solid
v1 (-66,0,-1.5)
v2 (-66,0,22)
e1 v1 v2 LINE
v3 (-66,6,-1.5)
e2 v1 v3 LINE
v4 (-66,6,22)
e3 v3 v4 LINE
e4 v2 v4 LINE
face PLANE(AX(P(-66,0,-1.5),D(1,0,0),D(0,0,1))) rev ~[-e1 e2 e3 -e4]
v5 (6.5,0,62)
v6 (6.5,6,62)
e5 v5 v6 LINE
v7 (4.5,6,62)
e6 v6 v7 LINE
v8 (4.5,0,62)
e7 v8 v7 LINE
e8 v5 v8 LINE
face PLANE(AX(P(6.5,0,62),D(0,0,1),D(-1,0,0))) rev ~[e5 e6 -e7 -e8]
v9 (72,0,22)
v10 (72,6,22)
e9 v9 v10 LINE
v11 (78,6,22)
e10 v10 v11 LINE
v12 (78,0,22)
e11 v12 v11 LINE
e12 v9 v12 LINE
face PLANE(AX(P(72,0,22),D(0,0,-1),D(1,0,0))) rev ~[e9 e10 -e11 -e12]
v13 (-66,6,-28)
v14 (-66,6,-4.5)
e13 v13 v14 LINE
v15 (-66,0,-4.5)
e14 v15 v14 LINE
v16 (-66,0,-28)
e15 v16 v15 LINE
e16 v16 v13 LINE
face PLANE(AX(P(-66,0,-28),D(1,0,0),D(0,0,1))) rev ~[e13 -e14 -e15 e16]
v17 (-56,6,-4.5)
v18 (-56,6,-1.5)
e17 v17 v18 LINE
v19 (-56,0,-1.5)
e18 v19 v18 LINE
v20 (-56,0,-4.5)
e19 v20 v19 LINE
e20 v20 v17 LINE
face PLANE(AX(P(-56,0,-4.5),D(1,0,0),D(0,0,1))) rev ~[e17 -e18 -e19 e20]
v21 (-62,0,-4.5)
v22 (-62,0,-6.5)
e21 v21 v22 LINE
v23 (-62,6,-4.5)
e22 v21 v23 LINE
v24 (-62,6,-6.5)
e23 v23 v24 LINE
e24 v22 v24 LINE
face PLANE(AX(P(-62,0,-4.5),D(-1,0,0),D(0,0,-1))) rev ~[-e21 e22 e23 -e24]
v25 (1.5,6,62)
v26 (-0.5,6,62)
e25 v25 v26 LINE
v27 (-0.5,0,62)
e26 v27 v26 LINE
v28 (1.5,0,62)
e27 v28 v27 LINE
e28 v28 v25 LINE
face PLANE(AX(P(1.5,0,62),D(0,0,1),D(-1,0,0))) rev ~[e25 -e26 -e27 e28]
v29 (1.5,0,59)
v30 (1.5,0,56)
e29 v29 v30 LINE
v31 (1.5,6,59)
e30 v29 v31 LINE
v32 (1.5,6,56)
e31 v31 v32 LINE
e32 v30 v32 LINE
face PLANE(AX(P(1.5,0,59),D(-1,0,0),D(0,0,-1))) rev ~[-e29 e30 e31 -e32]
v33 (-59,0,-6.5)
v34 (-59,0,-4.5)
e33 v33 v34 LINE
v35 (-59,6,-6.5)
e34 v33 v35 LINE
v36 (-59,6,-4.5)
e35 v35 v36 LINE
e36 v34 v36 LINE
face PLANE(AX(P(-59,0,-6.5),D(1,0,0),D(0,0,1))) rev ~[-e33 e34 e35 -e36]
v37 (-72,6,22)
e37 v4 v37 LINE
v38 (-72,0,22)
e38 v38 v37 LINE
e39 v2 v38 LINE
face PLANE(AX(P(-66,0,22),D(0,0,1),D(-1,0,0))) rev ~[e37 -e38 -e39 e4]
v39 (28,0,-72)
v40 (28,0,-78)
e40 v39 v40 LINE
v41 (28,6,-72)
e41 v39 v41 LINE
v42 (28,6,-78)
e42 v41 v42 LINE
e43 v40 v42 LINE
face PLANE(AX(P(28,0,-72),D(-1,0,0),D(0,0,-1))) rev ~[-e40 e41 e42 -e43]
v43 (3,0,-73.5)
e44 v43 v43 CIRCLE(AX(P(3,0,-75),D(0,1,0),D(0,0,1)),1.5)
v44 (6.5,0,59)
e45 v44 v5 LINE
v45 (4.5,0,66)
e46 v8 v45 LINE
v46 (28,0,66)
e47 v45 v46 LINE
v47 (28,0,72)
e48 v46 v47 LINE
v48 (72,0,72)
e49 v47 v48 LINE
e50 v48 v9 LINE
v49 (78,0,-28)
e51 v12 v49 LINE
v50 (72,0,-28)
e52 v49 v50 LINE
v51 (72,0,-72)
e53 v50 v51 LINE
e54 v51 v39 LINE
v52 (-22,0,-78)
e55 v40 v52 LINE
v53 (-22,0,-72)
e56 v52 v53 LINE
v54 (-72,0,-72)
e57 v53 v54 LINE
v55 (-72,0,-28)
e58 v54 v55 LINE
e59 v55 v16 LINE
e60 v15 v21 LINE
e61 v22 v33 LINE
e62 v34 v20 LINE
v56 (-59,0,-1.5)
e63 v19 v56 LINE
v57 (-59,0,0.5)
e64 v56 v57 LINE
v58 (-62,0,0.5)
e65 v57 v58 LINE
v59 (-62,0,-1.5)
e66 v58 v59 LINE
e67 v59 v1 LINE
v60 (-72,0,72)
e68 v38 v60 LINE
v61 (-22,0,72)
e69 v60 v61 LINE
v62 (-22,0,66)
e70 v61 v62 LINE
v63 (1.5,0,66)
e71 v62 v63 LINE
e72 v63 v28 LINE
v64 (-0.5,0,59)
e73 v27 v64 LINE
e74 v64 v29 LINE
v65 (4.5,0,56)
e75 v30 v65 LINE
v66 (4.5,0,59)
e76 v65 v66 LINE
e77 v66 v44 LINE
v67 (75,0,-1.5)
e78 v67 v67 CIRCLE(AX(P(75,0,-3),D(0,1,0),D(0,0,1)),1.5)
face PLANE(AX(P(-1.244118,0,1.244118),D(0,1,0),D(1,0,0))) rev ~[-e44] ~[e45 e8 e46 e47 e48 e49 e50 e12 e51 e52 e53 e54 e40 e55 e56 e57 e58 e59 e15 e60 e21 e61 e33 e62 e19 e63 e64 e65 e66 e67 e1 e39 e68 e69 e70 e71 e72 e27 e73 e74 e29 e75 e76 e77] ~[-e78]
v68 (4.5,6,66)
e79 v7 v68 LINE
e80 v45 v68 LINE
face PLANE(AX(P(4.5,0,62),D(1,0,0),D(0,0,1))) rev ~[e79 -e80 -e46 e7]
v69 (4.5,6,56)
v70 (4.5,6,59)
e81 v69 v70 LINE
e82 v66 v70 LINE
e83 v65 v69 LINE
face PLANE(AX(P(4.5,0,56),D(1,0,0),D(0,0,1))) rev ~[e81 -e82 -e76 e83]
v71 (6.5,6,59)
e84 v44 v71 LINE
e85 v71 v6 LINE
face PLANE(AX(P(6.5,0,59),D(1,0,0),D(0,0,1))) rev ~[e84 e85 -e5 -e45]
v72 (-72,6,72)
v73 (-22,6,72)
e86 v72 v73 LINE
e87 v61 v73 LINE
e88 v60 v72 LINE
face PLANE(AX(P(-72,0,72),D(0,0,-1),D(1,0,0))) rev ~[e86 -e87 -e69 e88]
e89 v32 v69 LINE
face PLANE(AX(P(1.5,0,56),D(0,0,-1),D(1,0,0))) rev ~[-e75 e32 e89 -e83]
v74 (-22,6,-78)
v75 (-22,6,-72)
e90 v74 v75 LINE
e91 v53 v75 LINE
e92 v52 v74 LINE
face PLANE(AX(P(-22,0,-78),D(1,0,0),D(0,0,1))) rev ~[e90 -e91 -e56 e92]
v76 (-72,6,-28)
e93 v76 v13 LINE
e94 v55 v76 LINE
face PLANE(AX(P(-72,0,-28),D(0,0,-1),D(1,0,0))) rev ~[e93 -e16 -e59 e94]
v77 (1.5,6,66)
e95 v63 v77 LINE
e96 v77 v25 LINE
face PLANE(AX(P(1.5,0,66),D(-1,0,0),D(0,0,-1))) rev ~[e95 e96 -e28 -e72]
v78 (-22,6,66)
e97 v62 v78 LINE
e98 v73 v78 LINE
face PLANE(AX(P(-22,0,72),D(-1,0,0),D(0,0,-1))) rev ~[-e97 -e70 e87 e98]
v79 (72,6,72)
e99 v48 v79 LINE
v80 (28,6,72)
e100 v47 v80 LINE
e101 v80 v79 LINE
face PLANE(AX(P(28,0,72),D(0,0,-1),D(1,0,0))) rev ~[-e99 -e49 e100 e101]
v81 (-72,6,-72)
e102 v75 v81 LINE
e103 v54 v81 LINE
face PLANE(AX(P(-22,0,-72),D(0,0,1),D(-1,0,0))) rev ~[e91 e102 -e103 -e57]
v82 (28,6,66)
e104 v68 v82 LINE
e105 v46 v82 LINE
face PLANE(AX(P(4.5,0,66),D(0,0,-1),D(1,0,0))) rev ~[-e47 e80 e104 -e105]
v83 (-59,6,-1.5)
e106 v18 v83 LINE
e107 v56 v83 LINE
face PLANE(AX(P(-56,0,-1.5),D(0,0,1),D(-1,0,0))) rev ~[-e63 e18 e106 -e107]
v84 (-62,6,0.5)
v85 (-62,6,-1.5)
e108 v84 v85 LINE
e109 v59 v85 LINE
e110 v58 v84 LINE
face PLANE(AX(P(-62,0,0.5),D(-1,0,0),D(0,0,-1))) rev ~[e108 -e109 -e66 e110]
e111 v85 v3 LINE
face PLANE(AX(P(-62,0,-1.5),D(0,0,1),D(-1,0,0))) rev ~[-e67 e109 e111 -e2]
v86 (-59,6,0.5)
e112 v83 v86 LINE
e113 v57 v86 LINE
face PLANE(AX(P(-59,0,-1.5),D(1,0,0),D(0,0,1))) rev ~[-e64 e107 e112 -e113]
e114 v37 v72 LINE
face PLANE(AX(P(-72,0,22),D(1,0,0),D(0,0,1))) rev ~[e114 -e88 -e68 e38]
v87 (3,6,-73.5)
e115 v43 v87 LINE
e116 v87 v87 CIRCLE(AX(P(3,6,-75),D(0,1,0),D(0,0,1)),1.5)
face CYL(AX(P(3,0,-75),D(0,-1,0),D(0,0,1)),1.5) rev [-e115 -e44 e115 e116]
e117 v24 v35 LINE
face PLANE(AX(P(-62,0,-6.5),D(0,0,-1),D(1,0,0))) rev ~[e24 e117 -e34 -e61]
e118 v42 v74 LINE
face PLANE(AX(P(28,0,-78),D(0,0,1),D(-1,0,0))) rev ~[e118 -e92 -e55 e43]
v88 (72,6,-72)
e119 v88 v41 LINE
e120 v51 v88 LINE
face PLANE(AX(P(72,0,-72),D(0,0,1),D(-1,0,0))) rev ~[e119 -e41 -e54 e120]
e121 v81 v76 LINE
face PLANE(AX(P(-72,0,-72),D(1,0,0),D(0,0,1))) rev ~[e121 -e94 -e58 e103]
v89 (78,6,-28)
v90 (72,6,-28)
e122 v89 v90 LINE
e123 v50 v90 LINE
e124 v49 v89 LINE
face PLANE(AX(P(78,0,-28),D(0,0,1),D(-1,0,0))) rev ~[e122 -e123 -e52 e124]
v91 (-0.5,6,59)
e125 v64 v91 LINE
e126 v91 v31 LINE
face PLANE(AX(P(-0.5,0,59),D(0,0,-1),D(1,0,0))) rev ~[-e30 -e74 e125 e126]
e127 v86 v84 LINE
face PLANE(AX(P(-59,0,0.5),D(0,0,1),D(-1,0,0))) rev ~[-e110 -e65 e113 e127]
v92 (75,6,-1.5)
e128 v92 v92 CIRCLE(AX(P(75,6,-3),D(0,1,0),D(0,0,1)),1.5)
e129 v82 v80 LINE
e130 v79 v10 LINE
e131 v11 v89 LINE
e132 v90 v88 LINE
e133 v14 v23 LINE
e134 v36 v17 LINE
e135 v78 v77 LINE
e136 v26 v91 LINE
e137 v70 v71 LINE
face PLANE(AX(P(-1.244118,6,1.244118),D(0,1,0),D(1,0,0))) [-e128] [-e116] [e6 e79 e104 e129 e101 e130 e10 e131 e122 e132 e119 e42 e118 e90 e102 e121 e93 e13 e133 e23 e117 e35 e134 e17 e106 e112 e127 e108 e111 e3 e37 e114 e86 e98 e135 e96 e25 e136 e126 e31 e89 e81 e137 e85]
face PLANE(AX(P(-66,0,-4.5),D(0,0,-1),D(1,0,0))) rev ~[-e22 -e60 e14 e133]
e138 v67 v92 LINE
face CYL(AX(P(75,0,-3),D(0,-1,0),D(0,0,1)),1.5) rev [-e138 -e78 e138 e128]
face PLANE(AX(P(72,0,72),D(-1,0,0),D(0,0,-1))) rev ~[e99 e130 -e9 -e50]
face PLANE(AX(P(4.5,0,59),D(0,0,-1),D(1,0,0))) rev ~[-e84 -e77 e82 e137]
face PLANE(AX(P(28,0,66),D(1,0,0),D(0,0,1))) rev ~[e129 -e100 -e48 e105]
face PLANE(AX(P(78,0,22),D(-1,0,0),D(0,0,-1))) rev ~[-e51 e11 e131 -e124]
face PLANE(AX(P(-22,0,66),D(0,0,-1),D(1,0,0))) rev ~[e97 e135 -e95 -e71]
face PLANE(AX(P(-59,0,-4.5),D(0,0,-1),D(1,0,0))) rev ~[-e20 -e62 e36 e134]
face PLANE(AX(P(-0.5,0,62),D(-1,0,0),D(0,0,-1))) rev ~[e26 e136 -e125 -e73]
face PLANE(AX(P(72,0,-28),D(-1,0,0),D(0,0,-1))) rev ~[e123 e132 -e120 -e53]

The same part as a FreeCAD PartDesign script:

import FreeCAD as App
import Part
import Sketcher

doc = App.newDocument("Part")
params = doc.addObject("Spreadsheet::Sheet", "Params")
for row, (alias, value) in enumerate([
    ("sketch1_diameter", "3 mm"),
    ("sketch1_width", "6 mm"),
    ("sketch1_width2", "4 mm"),
    ("sketch1_width3", "3 mm"),
    ("sketch1_width4", "50 mm"),
    ("pad1_length", "6 mm"),
], start=1):
    params.set(f"A{row}", alias)
    params.set(f"B{row}", "=" + value)
    params.setAlias(f"B{row}", alias)

body = doc.addObject("PartDesign::Body", "Body")

# Sketch on XZ plane
sketch1 = body.newObject("Sketcher::SketchObject", "Sketch")
sketch1.AttachmentSupport = (doc.getObject("XZ_Plane"), [""])
sketch1.MapMode = "FlatFace"
sketch1.addGeometry([
    Part.LineSegment(App.Vector(-72, -72, 0), App.Vector(-72, -28, 0)),  # 0
    Part.LineSegment(App.Vector(-72, -28, 0), App.Vector(-66, -28, 0)),  # 1
    Part.LineSegment(App.Vector(-66, -28, 0), App.Vector(-66, -4.5, 0)),  # 2
    Part.LineSegment(App.Vector(-66, -4.5, 0), App.Vector(-62, -4.5, 0)),  # 3
    Part.LineSegment(App.Vector(-62, -4.5, 0), App.Vector(-62, -6.5, 0)),  # 4
    Part.LineSegment(App.Vector(-62, -6.5, 0), App.Vector(-59, -6.5, 0)),  # 5
    Part.LineSegment(App.Vector(-59, -6.5, 0), App.Vector(-59, -4.5, 0)),  # 6
    Part.LineSegment(App.Vector(-59, -4.5, 0), App.Vector(-56, -4.5, 0)),  # 7
    Part.LineSegment(App.Vector(-56, -4.5, 0), App.Vector(-56, -1.5, 0)),  # 8
    Part.LineSegment(App.Vector(-56, -1.5, 0), App.Vector(-59, -1.5, 0)),  # 9
    Part.LineSegment(App.Vector(-59, -1.5, 0), App.Vector(-59, 0.5, 0)),  # 10
    Part.LineSegment(App.Vector(-59, 0.5, 0), App.Vector(-62, 0.5, 0)),  # 11
    Part.LineSegment(App.Vector(-62, 0.5, 0), App.Vector(-62, -1.5, 0)),  # 12
    Part.LineSegment(App.Vector(-62, -1.5, 0), App.Vector(-66, -1.5, 0)),  # 13
    Part.LineSegment(App.Vector(-66, -1.5, 0), App.Vector(-66, 22, 0)),  # 14
    Part.LineSegment(App.Vector(-66, 22, 0), App.Vector(-72, 22, 0)),  # 15
    Part.LineSegment(App.Vector(-72, 22, 0), App.Vector(-72, 72, 0)),  # 16
    Part.LineSegment(App.Vector(-72, 72, 0), App.Vector(-22, 72, 0)),  # 17
    Part.LineSegment(App.Vector(-22, 72, 0), App.Vector(-22, 66, 0)),  # 18
    Part.LineSegment(App.Vector(-22, 66, 0), App.Vector(1.5, 66, 0)),  # 19
    Part.LineSegment(App.Vector(1.5, 66, 0), App.Vector(1.5, 62, 0)),  # 20
    Part.LineSegment(App.Vector(1.5, 62, 0), App.Vector(-0.5, 62, 0)),  # 21
    Part.LineSegment(App.Vector(-0.5, 62, 0), App.Vector(-0.5, 59, 0)),  # 22
    Part.LineSegment(App.Vector(-0.5, 59, 0), App.Vector(1.5, 59, 0)),  # 23
    Part.LineSegment(App.Vector(1.5, 59, 0), App.Vector(1.5, 56, 0)),  # 24
    Part.LineSegment(App.Vector(1.5, 56, 0), App.Vector(4.5, 56, 0)),  # 25
    Part.LineSegment(App.Vector(4.5, 56, 0), App.Vector(4.5, 59, 0)),  # 26
    Part.LineSegment(App.Vector(4.5, 59, 0), App.Vector(6.5, 59, 0)),  # 27
    Part.LineSegment(App.Vector(6.5, 59, 0), App.Vector(6.5, 62, 0)),  # 28
    Part.LineSegment(App.Vector(6.5, 62, 0), App.Vector(4.5, 62, 0)),  # 29
    Part.LineSegment(App.Vector(4.5, 62, 0), App.Vector(4.5, 66, 0)),  # 30
    Part.LineSegment(App.Vector(4.5, 66, 0), App.Vector(28, 66, 0)),  # 31
    Part.LineSegment(App.Vector(28, 66, 0), App.Vector(28, 72, 0)),  # 32
    Part.LineSegment(App.Vector(28, 72, 0), App.Vector(72, 72, 0)),  # 33
    Part.LineSegment(App.Vector(72, 72, 0), App.Vector(72, 22, 0)),  # 34
    Part.LineSegment(App.Vector(72, 22, 0), App.Vector(78, 22, 0)),  # 35
    Part.LineSegment(App.Vector(78, 22, 0), App.Vector(78, -28, 0)),  # 36
    Part.LineSegment(App.Vector(78, -28, 0), App.Vector(72, -28, 0)),  # 37
    Part.LineSegment(App.Vector(72, -28, 0), App.Vector(72, -72, 0)),  # 38
    Part.LineSegment(App.Vector(72, -72, 0), App.Vector(28, -72, 0)),  # 39
    Part.LineSegment(App.Vector(28, -72, 0), App.Vector(28, -78, 0)),  # 40
    Part.LineSegment(App.Vector(28, -78, 0), App.Vector(-22, -78, 0)),  # 41
    Part.LineSegment(App.Vector(-22, -78, 0), App.Vector(-22, -72, 0)),  # 42
    Part.LineSegment(App.Vector(-22, -72, 0), App.Vector(-72, -72, 0)),  # 43
    Part.Circle(App.Vector(75, -3, 0), App.Vector(0, 0, 1), 1.5),  # 44
    Part.Circle(App.Vector(3, -75, 0), App.Vector(0, 0, 1), 1.5),  # 45
], False)
sketch1.addConstraint([
    Sketcher.Constraint("Coincident", 0, 2, 1, 1),
    Sketcher.Constraint("Coincident", 1, 2, 2, 1),
    Sketcher.Constraint("Coincident", 2, 2, 3, 1),
    Sketcher.Constraint("Coincident", 3, 2, 4, 1),
    Sketcher.Constraint("Coincident", 4, 2, 5, 1),
    Sketcher.Constraint("Coincident", 5, 2, 6, 1),
    Sketcher.Constraint("Coincident", 6, 2, 7, 1),
    Sketcher.Constraint("Coincident", 7, 2, 8, 1),
    Sketcher.Constraint("Coincident", 8, 2, 9, 1),
    Sketcher.Constraint("Coincident", 9, 2, 10, 1),
    Sketcher.Constraint("Coincident", 10, 2, 11, 1),
    Sketcher.Constraint("Coincident", 11, 2, 12, 1),
    Sketcher.Constraint("Coincident", 12, 2, 13, 1),
    Sketcher.Constraint("Coincident", 13, 2, 14, 1),
    Sketcher.Constraint("Coincident", 14, 2, 15, 1),
    Sketcher.Constraint("Coincident", 15, 2, 16, 1),
    Sketcher.Constraint("Coincident", 16, 2, 17, 1),
    Sketcher.Constraint("Coincident", 17, 2, 18, 1),
    Sketcher.Constraint("Coincident", 18, 2, 19, 1),
    Sketcher.Constraint("Coincident", 19, 2, 20, 1),
    Sketcher.Constraint("Coincident", 20, 2, 21, 1),
    Sketcher.Constraint("Coincident", 21, 2, 22, 1),
    Sketcher.Constraint("Coincident", 22, 2, 23, 1),
    Sketcher.Constraint("Coincident", 23, 2, 24, 1),
    Sketcher.Constraint("Coincident", 24, 2, 25, 1),
    Sketcher.Constraint("Coincident", 25, 2, 26, 1),
    Sketcher.Constraint("Coincident", 26, 2, 27, 1),
    Sketcher.Constraint("Coincident", 27, 2, 28, 1),
    Sketcher.Constraint("Coincident", 28, 2, 29, 1),
    Sketcher.Constraint("Coincident", 29, 2, 30, 1),
    Sketcher.Constraint("Coincident", 30, 2, 31, 1),
    Sketcher.Constraint("Coincident", 31, 2, 32, 1),
    Sketcher.Constraint("Coincident", 32, 2, 33, 1),
    Sketcher.Constraint("Coincident", 33, 2, 34, 1),
    Sketcher.Constraint("Coincident", 34, 2, 35, 1),
    Sketcher.Constraint("Coincident", 35, 2, 36, 1),
    Sketcher.Constraint("Coincident", 36, 2, 37, 1),
    Sketcher.Constraint("Coincident", 37, 2, 38, 1),
    Sketcher.Constraint("Coincident", 38, 2, 39, 1),
    Sketcher.Constraint("Coincident", 39, 2, 40, 1),
    Sketcher.Constraint("Coincident", 40, 2, 41, 1),
    Sketcher.Constraint("Coincident", 41, 2, 42, 1),
    Sketcher.Constraint("Coincident", 42, 2, 43, 1),
    Sketcher.Constraint("Coincident", 43, 2, 0, 1),
    Sketcher.Constraint("Vertical", 0),
    Sketcher.Constraint("Horizontal", 1),
    Sketcher.Constraint("Vertical", 2),
    Sketcher.Constraint("Horizontal", 3),
    Sketcher.Constraint("Vertical", 4),
    Sketcher.Constraint("Horizontal", 5),
    Sketcher.Constraint("Vertical", 6),
    Sketcher.Constraint("Horizontal", 7),
    Sketcher.Constraint("Vertical", 8),
    Sketcher.Constraint("Horizontal", 9),
    Sketcher.Constraint("Vertical", 10),
    Sketcher.Constraint("Horizontal", 11),
    Sketcher.Constraint("Vertical", 12),
    Sketcher.Constraint("Horizontal", 13),
    Sketcher.Constraint("Vertical", 14),
    Sketcher.Constraint("Horizontal", 15),
    Sketcher.Constraint("Vertical", 16),
    Sketcher.Constraint("Horizontal", 17),
    Sketcher.Constraint("Vertical", 18),
    Sketcher.Constraint("Horizontal", 19),
    Sketcher.Constraint("Vertical", 20),
    Sketcher.Constraint("Horizontal", 21),
    Sketcher.Constraint("Vertical", 22),
    Sketcher.Constraint("Horizontal", 23),
    Sketcher.Constraint("Vertical", 24),
    Sketcher.Constraint("Horizontal", 25),
    Sketcher.Constraint("Vertical", 26),
    Sketcher.Constraint("Horizontal", 27),
    Sketcher.Constraint("Vertical", 28),
    Sketcher.Constraint("Horizontal", 29),
    Sketcher.Constraint("Vertical", 30),
    Sketcher.Constraint("Horizontal", 31),
    Sketcher.Constraint("Vertical", 32),
    Sketcher.Constraint("Horizontal", 33),
    Sketcher.Constraint("Vertical", 34),
    Sketcher.Constraint("Horizontal", 35),
    Sketcher.Constraint("Vertical", 36),
    Sketcher.Constraint("Horizontal", 37),
    Sketcher.Constraint("Vertical", 38),
    Sketcher.Constraint("Horizontal", 39),
    Sketcher.Constraint("Vertical", 40),
    Sketcher.Constraint("Horizontal", 41),
    Sketcher.Constraint("Vertical", 42),
    Sketcher.Constraint("Horizontal", 43),
    Sketcher.Constraint("Equal", 44, 45),
    Sketcher.Constraint("Symmetric", 16, 2, 38, 2, -1, 1),
    Sketcher.Constraint("Symmetric", 33, 2, 43, 2, -1, 1),
    Sketcher.Constraint("Symmetric", 16, 2, 33, 2, -2),
    Sketcher.Constraint("Horizontal", 3, 2, 6, 2),
    Sketcher.Constraint("Horizontal", 9, 2, 12, 2),
    Sketcher.Constraint("Horizontal", 23, 2, 26, 2),
    Sketcher.Constraint("Horizontal", 21, 2, 28, 2),
    Sketcher.Constraint("Horizontal", 19, 2, 30, 2),
    Sketcher.Constraint("Horizontal", 15, 2, 34, 2),
    Sketcher.Constraint("Horizontal", 1, 2, 36, 2),
    Sketcher.Constraint("Vertical", 6, 2, 9, 2),
    Sketcher.Constraint("Vertical", 4, 2, 11, 2),
    Sketcher.Constraint("Vertical", 2, 2, 13, 2),
    Sketcher.Constraint("Vertical", 20, 2, 23, 2),
    Sketcher.Constraint("Vertical", 26, 2, 29, 2),
    Sketcher.Constraint("Vertical", 32, 2, 39, 2),
    Sketcher.Constraint("Vertical", 18, 2, 41, 2),
    Sketcher.Constraint("Equal", 5, 7),
    Sketcher.Constraint("Equal", 11, 25),
    Sketcher.Constraint("Equal", 23, 27),
    Sketcher.Constraint("Equal", 19, 31),
    Sketcher.Constraint("Equal", 15, 35),
    Sketcher.Constraint("Equal", 17, 41),
    Sketcher.Constraint("Equal", 39, 0),
    Sketcher.Constraint("Equal", 31, 2),
    Sketcher.Constraint("Equal", 29, 4),
    Sketcher.Constraint("Equal", 25, 8),
    Sketcher.Constraint("Equal", 6, 10),
    Sketcher.Constraint("Equal", 2, 14),
    Sketcher.Constraint("Equal", 43, 16),
    Sketcher.Constraint("Equal", 37, 18),
    Sketcher.Constraint("Equal", 13, 20),
    Sketcher.Constraint("Equal", 8, 22),
    Sketcher.Constraint("Equal", 22, 24),
    Sketcher.Constraint("Equal", 32, 40),
    Sketcher.Constraint("Diameter", 44, 3.0),
    Sketcher.Constraint("DistanceX", 1, 1, 1, 2, 6.0),
    Sketcher.Constraint("DistanceX", 3, 1, 3, 2, 4.0),
    Sketcher.Constraint("DistanceX", 5, 1, 5, 2, 3.0),
    Sketcher.Constraint("DistanceX", 17, 1, 17, 2, 50.0),
    Sketcher.Constraint("DistanceX", 21, 2, 21, 1, 2.0),
    Sketcher.Constraint("DistanceX", 33, 1, 33, 2, 44.0),
    Sketcher.Constraint("DistanceX", -1, 1, 44, 3, 75.0),
    Sketcher.Constraint("DistanceY", 44, 3, -1, 1, 3.0),
    Sketcher.Constraint("DistanceX", -1, 1, 45, 3, 3.0),
    Sketcher.Constraint("DistanceY", 45, 3, -1, 1, 75.0),
])
sketch1.setExpression("Constraints[124]", "Params.sketch1_diameter")
sketch1.setExpression("Constraints[125]", "Params.sketch1_width")
sketch1.setExpression("Constraints[126]", "Params.sketch1_width2")
sketch1.setExpression("Constraints[127]", "Params.sketch1_width3")
sketch1.setExpression("Constraints[128]", "Params.sketch1_width4")
pad1 = body.newObject("PartDesign::Pad", "Pad")
pad1.Profile = sketch1
pad1.setExpression("Length", "Params.pad1_length")
pad1.Reversed = True

doc.recompute()
